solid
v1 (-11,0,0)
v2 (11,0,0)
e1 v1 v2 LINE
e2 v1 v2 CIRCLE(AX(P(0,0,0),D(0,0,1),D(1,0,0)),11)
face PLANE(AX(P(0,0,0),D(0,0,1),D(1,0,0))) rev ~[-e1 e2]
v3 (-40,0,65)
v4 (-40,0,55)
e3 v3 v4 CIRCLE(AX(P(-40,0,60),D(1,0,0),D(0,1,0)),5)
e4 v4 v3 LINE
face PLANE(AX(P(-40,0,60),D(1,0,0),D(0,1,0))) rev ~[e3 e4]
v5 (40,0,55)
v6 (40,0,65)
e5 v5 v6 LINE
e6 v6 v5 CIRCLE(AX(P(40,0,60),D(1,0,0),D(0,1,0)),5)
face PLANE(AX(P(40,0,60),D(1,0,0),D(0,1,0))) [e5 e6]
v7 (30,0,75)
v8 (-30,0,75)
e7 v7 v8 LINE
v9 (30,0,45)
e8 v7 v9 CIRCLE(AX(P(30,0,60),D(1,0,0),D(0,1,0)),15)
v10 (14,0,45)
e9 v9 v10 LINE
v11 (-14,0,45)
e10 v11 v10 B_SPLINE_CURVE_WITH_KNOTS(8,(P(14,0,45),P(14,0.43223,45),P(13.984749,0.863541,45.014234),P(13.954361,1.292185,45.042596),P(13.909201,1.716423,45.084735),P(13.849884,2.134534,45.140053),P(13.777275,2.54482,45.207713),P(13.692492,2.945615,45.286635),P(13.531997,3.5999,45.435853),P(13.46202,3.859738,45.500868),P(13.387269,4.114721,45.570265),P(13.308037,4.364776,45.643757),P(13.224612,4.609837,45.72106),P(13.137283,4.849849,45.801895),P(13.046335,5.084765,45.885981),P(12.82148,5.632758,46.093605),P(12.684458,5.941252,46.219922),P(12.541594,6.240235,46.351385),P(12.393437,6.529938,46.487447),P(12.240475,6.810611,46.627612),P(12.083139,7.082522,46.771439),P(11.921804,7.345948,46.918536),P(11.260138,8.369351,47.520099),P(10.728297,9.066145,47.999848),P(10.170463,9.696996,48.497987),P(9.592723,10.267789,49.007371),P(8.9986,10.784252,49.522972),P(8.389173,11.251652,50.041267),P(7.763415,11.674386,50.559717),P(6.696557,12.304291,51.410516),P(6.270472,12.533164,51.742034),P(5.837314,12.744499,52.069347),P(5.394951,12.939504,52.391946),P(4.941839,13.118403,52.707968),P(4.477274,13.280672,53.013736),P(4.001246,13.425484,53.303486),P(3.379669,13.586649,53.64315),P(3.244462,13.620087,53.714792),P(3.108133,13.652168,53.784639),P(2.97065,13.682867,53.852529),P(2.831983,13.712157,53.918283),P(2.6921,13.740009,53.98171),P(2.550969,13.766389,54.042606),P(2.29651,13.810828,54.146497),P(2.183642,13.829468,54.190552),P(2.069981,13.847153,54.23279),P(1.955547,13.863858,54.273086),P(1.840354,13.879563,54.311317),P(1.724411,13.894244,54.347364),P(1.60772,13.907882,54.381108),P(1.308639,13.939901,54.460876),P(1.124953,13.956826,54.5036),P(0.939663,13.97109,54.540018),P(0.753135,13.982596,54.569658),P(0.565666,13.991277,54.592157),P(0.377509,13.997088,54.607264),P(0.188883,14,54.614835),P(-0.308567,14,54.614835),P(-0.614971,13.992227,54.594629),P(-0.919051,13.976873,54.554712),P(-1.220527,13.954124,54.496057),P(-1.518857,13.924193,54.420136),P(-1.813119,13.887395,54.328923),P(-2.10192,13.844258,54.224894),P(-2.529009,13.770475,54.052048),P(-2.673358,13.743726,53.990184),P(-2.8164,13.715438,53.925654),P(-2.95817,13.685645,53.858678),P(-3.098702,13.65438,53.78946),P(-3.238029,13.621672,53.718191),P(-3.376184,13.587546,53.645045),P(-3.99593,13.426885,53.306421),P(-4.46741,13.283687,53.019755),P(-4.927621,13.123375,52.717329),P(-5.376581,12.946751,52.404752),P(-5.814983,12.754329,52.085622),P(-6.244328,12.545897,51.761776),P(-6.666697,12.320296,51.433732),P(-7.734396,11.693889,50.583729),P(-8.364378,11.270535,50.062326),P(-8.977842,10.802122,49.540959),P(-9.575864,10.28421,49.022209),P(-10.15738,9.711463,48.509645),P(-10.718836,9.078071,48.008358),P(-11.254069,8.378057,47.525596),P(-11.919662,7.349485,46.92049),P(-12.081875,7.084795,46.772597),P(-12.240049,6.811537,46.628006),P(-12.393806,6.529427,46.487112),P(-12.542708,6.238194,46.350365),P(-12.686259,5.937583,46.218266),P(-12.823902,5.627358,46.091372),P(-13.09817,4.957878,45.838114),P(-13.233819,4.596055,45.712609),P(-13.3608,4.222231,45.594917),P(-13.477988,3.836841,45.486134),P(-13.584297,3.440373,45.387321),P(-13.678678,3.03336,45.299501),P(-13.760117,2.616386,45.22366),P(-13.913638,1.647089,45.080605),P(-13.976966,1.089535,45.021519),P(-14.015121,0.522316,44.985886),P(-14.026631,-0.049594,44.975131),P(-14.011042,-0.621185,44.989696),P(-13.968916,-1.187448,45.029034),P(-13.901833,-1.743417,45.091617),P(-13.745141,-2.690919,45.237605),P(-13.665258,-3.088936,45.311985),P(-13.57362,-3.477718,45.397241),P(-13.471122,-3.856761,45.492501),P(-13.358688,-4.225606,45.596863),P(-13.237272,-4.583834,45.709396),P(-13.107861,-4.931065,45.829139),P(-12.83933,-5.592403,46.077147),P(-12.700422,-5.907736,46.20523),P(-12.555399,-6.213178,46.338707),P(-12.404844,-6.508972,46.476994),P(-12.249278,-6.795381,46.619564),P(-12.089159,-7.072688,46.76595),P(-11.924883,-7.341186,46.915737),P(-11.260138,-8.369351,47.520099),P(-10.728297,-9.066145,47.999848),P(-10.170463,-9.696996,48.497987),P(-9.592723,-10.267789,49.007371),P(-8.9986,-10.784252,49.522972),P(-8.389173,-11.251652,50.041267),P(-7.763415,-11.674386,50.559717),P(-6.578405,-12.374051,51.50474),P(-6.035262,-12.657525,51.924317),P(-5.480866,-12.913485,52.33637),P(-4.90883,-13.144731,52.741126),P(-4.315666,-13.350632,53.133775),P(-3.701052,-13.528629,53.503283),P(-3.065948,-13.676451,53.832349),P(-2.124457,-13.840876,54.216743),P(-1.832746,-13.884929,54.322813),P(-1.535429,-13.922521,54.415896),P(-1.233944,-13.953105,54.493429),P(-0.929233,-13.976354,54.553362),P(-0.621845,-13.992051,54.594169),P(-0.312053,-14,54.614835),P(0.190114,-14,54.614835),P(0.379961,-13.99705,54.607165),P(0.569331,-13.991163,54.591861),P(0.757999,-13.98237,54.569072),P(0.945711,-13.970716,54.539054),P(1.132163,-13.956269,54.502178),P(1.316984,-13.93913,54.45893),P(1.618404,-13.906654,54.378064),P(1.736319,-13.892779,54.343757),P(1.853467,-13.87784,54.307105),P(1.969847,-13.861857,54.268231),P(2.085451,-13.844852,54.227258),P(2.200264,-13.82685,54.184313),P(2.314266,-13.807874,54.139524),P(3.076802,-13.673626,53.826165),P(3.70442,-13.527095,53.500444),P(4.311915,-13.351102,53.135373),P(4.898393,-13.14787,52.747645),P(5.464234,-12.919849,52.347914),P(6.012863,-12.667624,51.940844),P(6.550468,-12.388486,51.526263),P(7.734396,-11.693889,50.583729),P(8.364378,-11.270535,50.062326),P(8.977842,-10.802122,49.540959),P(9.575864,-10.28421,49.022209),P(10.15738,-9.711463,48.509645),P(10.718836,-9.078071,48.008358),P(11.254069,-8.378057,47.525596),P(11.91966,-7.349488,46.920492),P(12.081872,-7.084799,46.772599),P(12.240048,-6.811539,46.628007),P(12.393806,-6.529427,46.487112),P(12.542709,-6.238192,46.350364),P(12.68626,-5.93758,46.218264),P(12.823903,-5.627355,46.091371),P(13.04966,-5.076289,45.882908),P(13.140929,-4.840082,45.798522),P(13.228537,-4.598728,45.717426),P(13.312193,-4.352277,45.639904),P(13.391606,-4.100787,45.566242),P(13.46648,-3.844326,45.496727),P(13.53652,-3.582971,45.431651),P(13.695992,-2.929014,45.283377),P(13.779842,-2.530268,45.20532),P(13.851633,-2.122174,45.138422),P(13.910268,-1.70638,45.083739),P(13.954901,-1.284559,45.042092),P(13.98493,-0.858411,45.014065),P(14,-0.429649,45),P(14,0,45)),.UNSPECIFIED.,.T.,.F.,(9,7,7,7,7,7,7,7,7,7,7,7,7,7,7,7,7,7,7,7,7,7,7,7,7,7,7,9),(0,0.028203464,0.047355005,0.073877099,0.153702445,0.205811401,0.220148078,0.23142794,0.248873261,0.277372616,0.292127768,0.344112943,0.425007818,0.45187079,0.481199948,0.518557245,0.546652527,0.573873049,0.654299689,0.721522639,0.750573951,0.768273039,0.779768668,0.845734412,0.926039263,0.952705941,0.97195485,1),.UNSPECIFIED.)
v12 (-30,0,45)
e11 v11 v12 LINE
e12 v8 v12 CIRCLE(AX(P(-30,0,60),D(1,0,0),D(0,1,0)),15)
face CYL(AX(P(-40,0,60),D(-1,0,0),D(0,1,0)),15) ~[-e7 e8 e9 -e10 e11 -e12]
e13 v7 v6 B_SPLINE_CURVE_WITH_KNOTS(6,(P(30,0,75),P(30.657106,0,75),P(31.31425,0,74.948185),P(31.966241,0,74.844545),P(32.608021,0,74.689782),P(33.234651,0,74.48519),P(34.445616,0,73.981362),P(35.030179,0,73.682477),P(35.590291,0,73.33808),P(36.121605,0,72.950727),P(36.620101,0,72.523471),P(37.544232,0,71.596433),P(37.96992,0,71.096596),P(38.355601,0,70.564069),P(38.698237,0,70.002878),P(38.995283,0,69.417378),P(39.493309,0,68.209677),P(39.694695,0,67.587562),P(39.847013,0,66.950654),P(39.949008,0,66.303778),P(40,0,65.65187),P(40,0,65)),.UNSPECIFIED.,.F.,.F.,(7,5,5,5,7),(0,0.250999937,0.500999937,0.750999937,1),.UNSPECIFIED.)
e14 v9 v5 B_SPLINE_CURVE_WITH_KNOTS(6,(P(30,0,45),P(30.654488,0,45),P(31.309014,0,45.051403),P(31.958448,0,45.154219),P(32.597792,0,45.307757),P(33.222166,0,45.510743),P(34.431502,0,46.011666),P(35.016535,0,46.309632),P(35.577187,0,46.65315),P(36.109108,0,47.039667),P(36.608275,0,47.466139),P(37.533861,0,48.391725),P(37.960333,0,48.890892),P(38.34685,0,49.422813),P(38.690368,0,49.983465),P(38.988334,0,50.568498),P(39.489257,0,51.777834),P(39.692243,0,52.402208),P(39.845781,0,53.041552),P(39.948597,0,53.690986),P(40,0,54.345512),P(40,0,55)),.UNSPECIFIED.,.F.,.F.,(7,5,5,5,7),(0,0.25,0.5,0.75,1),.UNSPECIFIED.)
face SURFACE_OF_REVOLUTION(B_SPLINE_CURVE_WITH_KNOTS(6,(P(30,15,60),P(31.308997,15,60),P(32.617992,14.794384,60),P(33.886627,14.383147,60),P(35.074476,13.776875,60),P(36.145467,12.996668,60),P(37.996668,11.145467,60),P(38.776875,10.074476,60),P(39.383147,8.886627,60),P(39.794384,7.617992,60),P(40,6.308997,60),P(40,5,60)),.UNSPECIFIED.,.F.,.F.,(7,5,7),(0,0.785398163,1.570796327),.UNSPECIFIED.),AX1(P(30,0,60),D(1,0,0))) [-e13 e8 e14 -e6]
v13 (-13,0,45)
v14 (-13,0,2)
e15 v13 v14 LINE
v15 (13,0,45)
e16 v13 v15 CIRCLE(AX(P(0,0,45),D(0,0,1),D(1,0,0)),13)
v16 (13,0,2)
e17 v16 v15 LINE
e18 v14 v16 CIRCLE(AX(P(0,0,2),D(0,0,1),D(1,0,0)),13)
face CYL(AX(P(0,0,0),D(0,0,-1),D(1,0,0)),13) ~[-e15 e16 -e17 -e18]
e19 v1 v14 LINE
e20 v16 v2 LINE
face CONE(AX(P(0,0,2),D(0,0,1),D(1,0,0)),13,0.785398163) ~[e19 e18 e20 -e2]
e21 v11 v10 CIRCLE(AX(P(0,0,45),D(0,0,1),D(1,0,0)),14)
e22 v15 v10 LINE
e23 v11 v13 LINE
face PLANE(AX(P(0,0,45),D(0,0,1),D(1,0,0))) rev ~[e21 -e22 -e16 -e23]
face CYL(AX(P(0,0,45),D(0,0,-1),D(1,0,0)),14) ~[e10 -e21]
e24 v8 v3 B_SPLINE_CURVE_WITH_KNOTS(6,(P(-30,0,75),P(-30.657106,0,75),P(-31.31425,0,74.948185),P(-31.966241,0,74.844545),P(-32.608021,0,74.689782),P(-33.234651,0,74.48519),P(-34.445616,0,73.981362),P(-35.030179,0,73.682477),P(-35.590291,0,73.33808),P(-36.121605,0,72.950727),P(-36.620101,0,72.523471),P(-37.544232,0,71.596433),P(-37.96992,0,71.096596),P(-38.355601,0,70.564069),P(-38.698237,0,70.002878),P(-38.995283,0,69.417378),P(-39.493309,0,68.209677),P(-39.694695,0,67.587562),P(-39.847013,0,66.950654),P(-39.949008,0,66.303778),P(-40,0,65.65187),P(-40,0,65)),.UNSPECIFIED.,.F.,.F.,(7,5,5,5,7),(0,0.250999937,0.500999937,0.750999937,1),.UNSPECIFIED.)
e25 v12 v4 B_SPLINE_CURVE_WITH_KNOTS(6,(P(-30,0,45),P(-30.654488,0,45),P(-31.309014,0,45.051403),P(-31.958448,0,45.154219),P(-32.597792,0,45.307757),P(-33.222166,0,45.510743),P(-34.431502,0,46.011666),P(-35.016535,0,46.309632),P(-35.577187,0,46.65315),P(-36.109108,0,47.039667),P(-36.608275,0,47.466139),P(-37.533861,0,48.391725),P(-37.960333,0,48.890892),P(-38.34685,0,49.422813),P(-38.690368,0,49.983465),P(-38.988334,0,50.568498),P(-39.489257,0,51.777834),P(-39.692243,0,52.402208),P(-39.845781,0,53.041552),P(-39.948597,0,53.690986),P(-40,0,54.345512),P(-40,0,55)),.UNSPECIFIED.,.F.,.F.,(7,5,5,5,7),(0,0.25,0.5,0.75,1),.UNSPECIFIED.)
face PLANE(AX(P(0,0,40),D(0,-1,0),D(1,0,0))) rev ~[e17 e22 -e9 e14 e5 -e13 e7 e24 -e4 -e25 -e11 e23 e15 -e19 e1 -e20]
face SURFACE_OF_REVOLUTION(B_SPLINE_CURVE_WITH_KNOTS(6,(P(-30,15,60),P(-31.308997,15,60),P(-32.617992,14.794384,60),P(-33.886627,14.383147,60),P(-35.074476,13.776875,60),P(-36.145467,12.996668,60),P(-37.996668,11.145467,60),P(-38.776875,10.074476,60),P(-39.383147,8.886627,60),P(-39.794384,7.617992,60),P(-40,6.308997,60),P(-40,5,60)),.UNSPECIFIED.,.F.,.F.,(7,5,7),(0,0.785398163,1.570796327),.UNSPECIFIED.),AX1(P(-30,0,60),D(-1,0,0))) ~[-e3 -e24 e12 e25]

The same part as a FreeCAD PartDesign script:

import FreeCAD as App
import Part
import Sketcher
from FreeCAD import Vector
Q = App.Units.Quantity


def edges_at(feature, points):
    """Names of the edges that pass closest to the given points."""
    edges = feature.Shape.Edges
    near = lambda p: min(range(len(edges)), key=lambda i: edges[i].distToShape(Part.Vertex(*p))[0])
    return sorted({f"Edge{near(p) + 1}" for p in points})

doc = App.newDocument("Part")
body = doc.addObject("PartDesign::Body", "Body")

# Sketch on XY plane
sketch1 = body.newObject("Sketcher::SketchObject", "Sketch")
sketch1.AttachmentSupport = (doc.getObject("XY_Plane"), [""])
sketch1.MapMode = "FlatFace"
sketch1.addGeometry(Part.Circle(Vector(0, 0, 0), Vector(0, 0, 1), 13), False)
sketch1.addConstraint([
    Sketcher.Constraint("Coincident", 0, 3, -1, 1),
    Sketcher.Constraint("Diameter", 0, Q("26 mm")),
])
pad1 = body.newObject("PartDesign::Pad", "Pad")
pad1.Profile = sketch1
pad1.Length = 45

# Sketch on XY plane
sketch2 = body.newObject("Sketcher::SketchObject", "Sketch001")
sketch2.AttachmentSupport = (doc.getObject("XY_Plane"), [""])
sketch2.MapMode = "FlatFace"
sketch2.AttachmentOffset = App.Placement(Vector(0, 0, 45), App.Rotation())
sketch2.addGeometry(Part.Circle(Vector(0, 0, 0), Vector(0, 0, 1), 14), False)
sketch2.addConstraint([
    Sketcher.Constraint("Coincident", 0, 3, -1, 1),
    Sketcher.Constraint("Diameter", 0, Q("28 mm")),
])
pad2 = body.newObject("PartDesign::Pad", "Pad001")
pad2.Profile = sketch2
pad2.Length = 10

# Sketch on YZ plane
sketch3 = body.newObject("Sketcher::SketchObject", "Sketch002")
sketch3.AttachmentSupport = (doc.getObject("YZ_Plane"), [""])
sketch3.MapMode = "FlatFace"
sketch3.AttachmentOffset = App.Placement(Vector(0, 0, -40), App.Rotation())
sketch3.addGeometry(Part.Circle(Vector(0, 60, 0), Vector(0, 0, 1), 15), False)
sketch3.addConstraint([
    Sketcher.Constraint("PointOnObject", 0, 3, -2),
    Sketcher.Constraint("Diameter", 0, Q("30 mm")),
    Sketcher.Constraint("DistanceY", -1, 1, 0, 3, Q("60 mm")),
])
pad3 = body.newObject("PartDesign::Pad", "Pad002")
pad3.Profile = sketch3
pad3.Length = 80
doc.recompute()

chamfer = body.newObject("PartDesign::Chamfer", "Chamfer")
chamfer.Base = (pad3, edges_at(pad3, [(-13, 0, 0)]))
chamfer.Size = 2
doc.recompute()

fillet = body.newObject("PartDesign::Fillet", "Fillet")
fillet.Base = (chamfer, edges_at(chamfer, [(40, -15, 60), (-40, -15, 60)]))
fillet.Radius = 10

# Sketch on XZ plane
sketch4 = body.newObject("Sketcher::SketchObject", "Sketch003")
sketch4.AttachmentSupport = (doc.getObject("XZ_Plane"), [""])
sketch4.MapMode = "FlatFace"
sketch4.AttachmentOffset = App.Placement(Vector(0, 0, -15), App.Rotation())
sketch4.addGeometry([
    Part.LineSegment(Vector(-40, 80, 0), Vector(-40, 0, 0)),
    Part.LineSegment(Vector(-40, 0, 0), Vector(40, 0, 0)),
    Part.LineSegment(Vector(40, 0, 0), Vector(40, 80, 0)),
    Part.LineSegment(Vector(40, 80, 0), Vector(-40, 80, 0)),
], False)
sketch4.addConstraint([
    Sketcher.Constraint("Coincident", 0, 2, 1, 1),
    Sketcher.Constraint("Coincident", 1, 2, 2, 1),
    Sketcher.Constraint("Coincident", 2, 2, 3, 1),
    Sketcher.Constraint("Coincident", 3, 2, 0, 1),
    Sketcher.Constraint("Vertical", 0),
    Sketcher.Constraint("Horizontal", 1),
    Sketcher.Constraint("Vertical", 2),
    Sketcher.Constraint("Horizontal", 3),
    Sketcher.Constraint("Symmetric", 0, 2, 1, 2, -1, 1),
    Sketcher.Constraint("Equal", 3, 0),
    Sketcher.Constraint("DistanceX", 1, 1, 1, 2, Q("80 mm")),
])
pocket1 = body.newObject("PartDesign::Pocket", "Pocket")
pocket1.Profile = sketch4
pocket1.Length = 15
pocket1.Reversed = True

doc.recompute()
